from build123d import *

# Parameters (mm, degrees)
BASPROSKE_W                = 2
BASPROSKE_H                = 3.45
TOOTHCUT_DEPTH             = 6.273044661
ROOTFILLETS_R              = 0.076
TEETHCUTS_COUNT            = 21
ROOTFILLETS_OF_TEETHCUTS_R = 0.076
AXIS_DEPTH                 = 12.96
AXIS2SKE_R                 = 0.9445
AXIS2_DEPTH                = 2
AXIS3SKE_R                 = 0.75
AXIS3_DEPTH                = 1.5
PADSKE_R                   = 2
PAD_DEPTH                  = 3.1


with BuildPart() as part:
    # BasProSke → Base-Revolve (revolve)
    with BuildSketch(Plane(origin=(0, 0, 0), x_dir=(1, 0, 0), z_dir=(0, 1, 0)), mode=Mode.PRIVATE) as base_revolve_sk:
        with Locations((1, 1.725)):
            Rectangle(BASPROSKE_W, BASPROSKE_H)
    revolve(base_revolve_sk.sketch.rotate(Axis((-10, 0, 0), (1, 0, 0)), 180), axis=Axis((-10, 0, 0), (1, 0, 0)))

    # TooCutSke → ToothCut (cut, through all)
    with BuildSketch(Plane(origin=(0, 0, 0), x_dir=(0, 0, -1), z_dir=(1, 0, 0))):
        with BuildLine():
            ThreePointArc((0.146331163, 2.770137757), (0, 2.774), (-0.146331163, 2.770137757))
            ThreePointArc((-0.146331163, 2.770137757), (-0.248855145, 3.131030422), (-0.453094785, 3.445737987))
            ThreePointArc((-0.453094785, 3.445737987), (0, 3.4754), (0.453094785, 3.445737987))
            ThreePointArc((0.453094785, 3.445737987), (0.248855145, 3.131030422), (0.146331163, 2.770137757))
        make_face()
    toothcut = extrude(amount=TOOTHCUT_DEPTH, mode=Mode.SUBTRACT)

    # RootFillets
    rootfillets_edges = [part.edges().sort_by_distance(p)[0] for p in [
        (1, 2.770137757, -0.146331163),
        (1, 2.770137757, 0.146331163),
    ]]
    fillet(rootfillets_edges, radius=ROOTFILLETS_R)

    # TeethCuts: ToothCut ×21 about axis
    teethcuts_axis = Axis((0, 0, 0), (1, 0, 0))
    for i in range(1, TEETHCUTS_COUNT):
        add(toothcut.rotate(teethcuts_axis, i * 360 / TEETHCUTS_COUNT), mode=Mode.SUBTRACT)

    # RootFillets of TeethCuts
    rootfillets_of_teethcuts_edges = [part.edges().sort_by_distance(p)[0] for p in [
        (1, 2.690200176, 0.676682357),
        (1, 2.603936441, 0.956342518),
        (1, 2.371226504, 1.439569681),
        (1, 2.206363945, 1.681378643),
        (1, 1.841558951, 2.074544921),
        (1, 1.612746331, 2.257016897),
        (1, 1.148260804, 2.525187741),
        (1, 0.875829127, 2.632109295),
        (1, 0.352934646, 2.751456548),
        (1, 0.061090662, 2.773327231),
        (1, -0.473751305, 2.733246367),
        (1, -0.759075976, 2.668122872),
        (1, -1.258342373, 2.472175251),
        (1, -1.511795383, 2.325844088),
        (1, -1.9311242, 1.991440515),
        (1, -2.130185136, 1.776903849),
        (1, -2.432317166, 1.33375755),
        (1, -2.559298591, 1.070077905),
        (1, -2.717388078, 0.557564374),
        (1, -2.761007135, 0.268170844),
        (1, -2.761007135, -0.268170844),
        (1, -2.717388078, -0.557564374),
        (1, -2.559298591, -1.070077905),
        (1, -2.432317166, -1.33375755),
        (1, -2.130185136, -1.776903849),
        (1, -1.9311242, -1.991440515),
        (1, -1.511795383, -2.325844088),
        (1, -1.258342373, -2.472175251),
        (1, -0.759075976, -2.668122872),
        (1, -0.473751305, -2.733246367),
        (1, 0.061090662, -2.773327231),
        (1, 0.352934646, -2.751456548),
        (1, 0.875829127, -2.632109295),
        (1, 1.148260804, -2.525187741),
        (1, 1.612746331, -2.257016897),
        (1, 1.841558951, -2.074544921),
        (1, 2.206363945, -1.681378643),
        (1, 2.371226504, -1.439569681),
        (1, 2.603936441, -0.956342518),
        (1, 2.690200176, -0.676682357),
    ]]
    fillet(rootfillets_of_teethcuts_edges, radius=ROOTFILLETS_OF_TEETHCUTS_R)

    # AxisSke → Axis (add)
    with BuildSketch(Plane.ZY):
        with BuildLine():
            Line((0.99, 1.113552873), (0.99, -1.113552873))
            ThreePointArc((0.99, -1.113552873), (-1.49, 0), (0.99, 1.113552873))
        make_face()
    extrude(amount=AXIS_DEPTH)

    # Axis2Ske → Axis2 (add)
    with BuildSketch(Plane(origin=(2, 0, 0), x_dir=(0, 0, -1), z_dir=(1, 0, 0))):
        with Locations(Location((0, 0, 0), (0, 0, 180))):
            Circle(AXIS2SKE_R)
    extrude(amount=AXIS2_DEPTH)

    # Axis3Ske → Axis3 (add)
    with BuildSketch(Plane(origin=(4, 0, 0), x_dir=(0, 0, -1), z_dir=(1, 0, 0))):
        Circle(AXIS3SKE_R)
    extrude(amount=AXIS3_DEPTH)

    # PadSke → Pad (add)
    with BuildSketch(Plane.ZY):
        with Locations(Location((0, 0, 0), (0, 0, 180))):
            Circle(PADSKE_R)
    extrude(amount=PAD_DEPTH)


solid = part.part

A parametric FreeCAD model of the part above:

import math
import FreeCAD as App
import Part
import Sketcher
from FreeCAD import Vector
Q = App.Units.Quantity


def edges_at(feature, points):
    """Names of the edges that pass closest to the given points."""
    edges = feature.Shape.Edges
    near = lambda p: min(range(len(edges)), key=lambda i: edges[i].distToShape(Part.Vertex(*p))[0])
    return sorted({f"Edge{near(p) + 1}" for p in points})

doc = App.newDocument("Part")
body = doc.addObject("PartDesign::Body", "Body")

sketch1 = body.newObject("Sketcher::SketchObject", "Sketch")
sketch1.AttachmentSupport = (doc.getObject("XZ_Plane"), [""])
sketch1.MapMode = "FlatFace"
sketch1.addGeometry([
    Part.LineSegment(Vector(0, -3.5, 0), Vector(0, 0, 0)),
    Part.LineSegment(Vector(0, 0, 0), Vector(2, 0, 0)),
    Part.LineSegment(Vector(2, 0, 0), Vector(2, -3.5, 0)),
    Part.LineSegment(Vector(2, -3.5, 0), Vector(0, -3.5, 0)),
], False)
sketch1.addConstraint([
    Sketcher.Constraint("Coincident", 0, 2, 1, 1),
    Sketcher.Constraint("Coincident", 1, 2, 2, 1),
    Sketcher.Constraint("Coincident", 2, 2, 3, 1),
    Sketcher.Constraint("Coincident", 3, 2, 0, 1),
    Sketcher.Constraint("Vertical", 0),
    Sketcher.Constraint("Horizontal", 1),
    Sketcher.Constraint("Vertical", 2),
    Sketcher.Constraint("Horizontal", 3),
    Sketcher.Constraint("Coincident", 0, 2, -1, 1),
    Sketcher.Constraint("DistanceX", 1, 1, 1, 2, Q("2 mm")),
    Sketcher.Constraint("DistanceY", 0, 1, 0, 2, Q("3.45 mm")),
])
revolution = body.newObject("PartDesign::Revolution", "Revolution")
revolution.Profile = sketch1
revolution.ReferenceAxis = (sketch1, ["H_Axis"])
revolution.Angle = 360

sketch2 = body.newObject("Sketcher::SketchObject", "Sketch001")
sketch2.AttachmentSupport = (doc.getObject("YZ_Plane"), [""])
sketch2.MapMode = "FlatFace"
sketch2.addGeometry([
    Part.ArcOfCircle(Part.Circle(Vector(0, 0, 0), Vector(0, 0, 1), 2.77), math.radians(-3.02), math.radians(3.02)),
    Part.ArcOfCircle(Part.Circle(Vector(2.61, -1.4, 0), Vector(0, 0, 1), 1.26), math.radians(48), math.radians(83)),
    Part.ArcOfCircle(Part.Circle(Vector(0, 0, 0), Vector(0, 0, 1), 3.48), math.radians(-7.49), math.radians(7.49)),
    Part.ArcOfCircle(Part.Circle(Vector(2.61, 1.4, 0), Vector(0, 0, 1), 1.26), math.radians(-83), math.radians(-48)),
], False)
sketch2.addConstraint([
    Sketcher.Constraint("Coincident", 0, 1, 1, 2),
    Sketcher.Constraint("Coincident", 1, 1, 2, 1),
    Sketcher.Constraint("Coincident", 2, 2, 3, 2),
    Sketcher.Constraint("Coincident", 3, 1, 0, 2),
    Sketcher.Constraint("Coincident", 0, 3, -1, 1),
    Sketcher.Constraint("Coincident", 2, 3, -1, 1),
    Sketcher.Constraint("Equal", 1, 3),
    Sketcher.Constraint("Symmetric", 1, 3, 3, 3, -1),
    Sketcher.Constraint("Radius", 1, Q("1.26 mm")),
    Sketcher.Constraint("Radius", 0, Q("2.774 mm")),
    Sketcher.Constraint("Radius", 2, Q("3.4754 mm")),
    Sketcher.Constraint("DistanceX", -1, 1, 1, 3, Q("2.6101 mm")),
    Sketcher.Constraint("DistanceX", 0, 1, 1, 1, Q("0.6756 mm")),
])
pocket1 = body.newObject("PartDesign::Pocket", "Pocket")
pocket1.Profile = sketch2
pocket1.Type = "ThroughAll"
pocket1.Reversed = True
doc.recompute()

fillet = body.newObject("PartDesign::Fillet", "Fillet")
fillet.Base = (pocket1, edges_at(pocket1, [(1, 2.77, -0.146), (1, 2.77, 0.146)]))
fillet.Radius = 0.076
doc.recompute()

polarpattern = body.newObject("PartDesign::PolarPattern", "PolarPattern")
polarpattern.Originals = [pocket1]
polarpattern.Axis = (doc.getObject("X_Axis"), [""])
polarpattern.Angle = 360
polarpattern.Occurrences = 21
body.Tip = polarpattern
doc.recompute()

fillet2 = body.newObject("PartDesign::Fillet", "Fillet001")
fillet2.Base = (polarpattern, edges_at(polarpattern, [
    (1, 2.69, 0.677),
    (1, 2.604, 0.956),
    (1, 2.371, 1.44),
    (1, 2.206, 1.681),
    (1, 1.842, 2.075),
    (1, 1.613, 2.257),
    (1, 1.148, 2.525),
    (1, 0.876, 2.632),
    (1, 0.353, 2.751),
    (1, 0.061, 2.773),
    (1, -0.474, 2.733),
    (1, -0.759, 2.668),
    (1, -1.258, 2.472),
    (1, -1.512, 2.326),
    (1, -1.931, 1.991),
    (1, -2.13, 1.777),
    (1, -2.432, 1.334),
    (1, -2.559, 1.07),
    (1, -2.717, 0.558),
    (1, -2.761, 0.268),
    (1, -2.761, -0.268),
    (1, -2.717, -0.558),
    (1, -2.559, -1.07),
    (1, -2.432, -1.334),
    (1, -2.13, -1.777),
    (1, -1.931, -1.991),
    (1, -1.512, -2.326),
    (1, -1.258, -2.472),
    (1, -0.759, -2.668),
    (1, -0.474, -2.733),
    (1, 0.061, -2.773),
    (1, 0.353, -2.751),
    (1, 0.876, -2.632),
    (1, 1.148, -2.525),
    (1, 1.613, -2.257),
    (1, 1.842, -2.075),
    (1, 2.206, -1.681),
    (1, 2.371, -1.44),
    (1, 2.604, -0.956),
    (1, 2.69, -0.677),
]))
fillet2.Radius = 0.076

sketch3 = body.newObject("Sketcher::SketchObject", "Sketch002")
sketch3.AttachmentSupport = (doc.getObject("YZ_Plane"), [""])
sketch3.MapMode = "FlatFace"
sketch3.addGeometry([
    Part.LineSegment(Vector(-1.1, 1, 0), Vector(1.1, 1, 0)),
    Part.ArcOfCircle(Part.Circle(Vector(0, 0, 0), Vector(0, 0, 1), 1.5), math.radians(138), math.radians(402)),
], False)
sketch3.addConstraint([
    Sketcher.Constraint("Coincident", 0, 1, 1, 1),
    Sketcher.Constraint("Coincident", 1, 2, 0, 2),
    Sketcher.Constraint("Horizontal", 0),
    Sketcher.Constraint("Coincident", 1, 3, -1, 1),
    Sketcher.Constraint("Radius", 1, Q("1.49 mm")),
    Sketcher.Constraint("DistanceY", -1, 1, 0, 1, Q("0.99 mm")),
])
pad1 = body.newObject("PartDesign::Pad", "Pad")
pad1.Profile = sketch3
pad1.Length = 12.96
pad1.Reversed = True

sketch4 = body.newObject("Sketcher::SketchObject", "Sketch003")
sketch4.AttachmentSupport = (doc.getObject("YZ_Plane"), [""])
sketch4.MapMode = "FlatFace"
sketch4.AttachmentOffset = App.Placement(Vector(0, 0, 2), App.Rotation())
sketch4.addGeometry(Part.Circle(Vector(0, 0, 0), Vector(0, 0, 1), 0.9), False)
sketch4.addConstraint([
    Sketcher.Constraint("Coincident", 0, 3, -1, 1),
    Sketcher.Constraint("Diameter", 0, Q("1.889 mm")),
])
pad2 = body.newObject("PartDesign::Pad", "Pad001")
pad2.Profile = sketch4
pad2.Length = 2

sketch5 = body.newObject("Sketcher::SketchObject", "Sketch004")
sketch5.AttachmentSupport = (doc.getObject("YZ_Plane"), [""])
sketch5.MapMode = "FlatFace"
sketch5.AttachmentOffset = App.Placement(Vector(0, 0, 4), App.Rotation())
sketch5.addGeometry(Part.Circle(Vector(0, 0, 0), Vector(0, 0, 1), 0.8), False)
sketch5.addConstraint([
    Sketcher.Constraint("Coincident", 0, 3, -1, 1),
    Sketcher.Constraint("Diameter", 0, Q("1.5 mm")),
])
pad3 = body.newObject("PartDesign::Pad", "Pad002")
pad3.Profile = sketch5
pad3.Length = 1.5

sketch6 = body.newObject("Sketcher::SketchObject", "Sketch005")
sketch6.AttachmentSupport = (doc.getObject("YZ_Plane"), [""])
sketch6.MapMode = "FlatFace"
sketch6.addGeometry(Part.Circle(Vector(0, 0, 0), Vector(0, 0, 1), 2), False)
sketch6.addConstraint([
    Sketcher.Constraint("Coincident", 0, 3, -1, 1),
    Sketcher.Constraint("Diameter", 0, Q("4 mm")),
])
pad4 = body.newObject("PartDesign::Pad", "Pad003")
pad4.Profile = sketch6
pad4.Length = 3.1
pad4.Reversed = True

doc.recompute()
